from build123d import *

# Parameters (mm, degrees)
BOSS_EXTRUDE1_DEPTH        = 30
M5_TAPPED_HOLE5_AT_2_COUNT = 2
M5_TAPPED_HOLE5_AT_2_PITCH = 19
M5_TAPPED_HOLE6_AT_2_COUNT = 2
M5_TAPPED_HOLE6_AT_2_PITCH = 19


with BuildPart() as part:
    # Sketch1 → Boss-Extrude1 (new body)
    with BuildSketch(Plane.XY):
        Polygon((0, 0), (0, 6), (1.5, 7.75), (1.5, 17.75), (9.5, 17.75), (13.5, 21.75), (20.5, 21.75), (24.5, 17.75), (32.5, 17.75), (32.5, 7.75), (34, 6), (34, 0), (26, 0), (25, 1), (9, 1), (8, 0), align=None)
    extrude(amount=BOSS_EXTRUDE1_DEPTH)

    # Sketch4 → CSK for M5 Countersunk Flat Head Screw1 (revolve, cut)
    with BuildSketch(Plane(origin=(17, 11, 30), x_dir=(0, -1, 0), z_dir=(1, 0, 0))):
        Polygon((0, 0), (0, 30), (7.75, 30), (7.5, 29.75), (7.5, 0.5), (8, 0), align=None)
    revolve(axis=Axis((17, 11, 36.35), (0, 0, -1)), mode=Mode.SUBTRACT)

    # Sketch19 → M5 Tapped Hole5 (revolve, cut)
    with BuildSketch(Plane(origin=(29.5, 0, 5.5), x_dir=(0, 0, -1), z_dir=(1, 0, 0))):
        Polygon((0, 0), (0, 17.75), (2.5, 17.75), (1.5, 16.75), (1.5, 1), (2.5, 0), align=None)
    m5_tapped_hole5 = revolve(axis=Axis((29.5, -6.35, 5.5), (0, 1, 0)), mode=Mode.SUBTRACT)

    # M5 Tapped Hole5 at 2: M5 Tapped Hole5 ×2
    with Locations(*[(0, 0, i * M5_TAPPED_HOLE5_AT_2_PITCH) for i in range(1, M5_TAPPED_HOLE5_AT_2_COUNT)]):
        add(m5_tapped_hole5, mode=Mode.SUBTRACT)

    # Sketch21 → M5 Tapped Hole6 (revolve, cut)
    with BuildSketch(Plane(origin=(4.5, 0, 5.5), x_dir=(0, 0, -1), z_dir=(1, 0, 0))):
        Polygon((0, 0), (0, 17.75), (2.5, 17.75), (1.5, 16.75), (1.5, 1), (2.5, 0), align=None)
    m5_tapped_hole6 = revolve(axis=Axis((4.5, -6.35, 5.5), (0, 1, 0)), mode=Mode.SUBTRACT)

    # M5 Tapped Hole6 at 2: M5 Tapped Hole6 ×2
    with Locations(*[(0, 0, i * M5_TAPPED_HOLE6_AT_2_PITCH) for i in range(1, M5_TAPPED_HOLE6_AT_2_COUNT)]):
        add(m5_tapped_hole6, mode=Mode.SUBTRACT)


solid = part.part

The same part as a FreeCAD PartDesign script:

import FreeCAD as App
import Part
import Sketcher
Q = App.Units.Quantity


def add_polygon(sketch, points):
    """Adds a closed chain of lines whose ends are joined by coincident constraints."""
    first, n = sketch.GeometryCount, len(points)
    for a, b in zip(points, points[1:] + points[:1]):
        sketch.addGeometry(Part.LineSegment(App.Vector(*a, 0), App.Vector(*b, 0)), False)
    for i in range(n):
        sketch.addConstraint(Sketcher.Constraint("Coincident", first + i, 2, first + (i + 1) % n, 1))

doc = App.newDocument("Part")
body = doc.addObject("PartDesign::Body", "Body")

# Sketch on XY plane
sketch1 = doc.addObject("Sketcher::SketchObject", "Sketch")
body.addObject(sketch1)
sketch1.AttachmentSupport = (doc.XY_Plane, [""])
sketch1.MapMode = "FlatFace"
add_polygon(sketch1, [(0, 6), (0, 0), (8, 0), (9, 1), (25, 1), (26, 0), (34, 0), (34, 6), (32.5, 7.8), (32.5, 17.8), (24.5, 17.8), (20.5, 21.8), (13.5, 21.8), (9.5, 17.8), (1.5, 17.8), (1.5, 7.8)])  # lines 0-15
sketch1.addConstraint([
    Sketcher.Constraint("Vertical", 0),
    Sketcher.Constraint("Horizontal", 1),
    Sketcher.Constraint("Horizontal", 3),
    Sketcher.Constraint("Horizontal", 5),
    Sketcher.Constraint("Vertical", 6),
    Sketcher.Constraint("Vertical", 8),
    Sketcher.Constraint("Horizontal", 9),
    Sketcher.Constraint("Horizontal", 11),
    Sketcher.Constraint("Horizontal", 13),
    Sketcher.Constraint("Vertical", 14),
    Sketcher.Constraint("Coincident", 0, 2, -1, 1),
    Sketcher.Constraint("PointOnObject", 4, 2, -1),
    Sketcher.Constraint("Perpendicular", 2, 4),
    Sketcher.Constraint("Parallel", 4, 10),
    Sketcher.Constraint("Perpendicular", 10, 12),
    Sketcher.Constraint("Horizontal", 9, 2, 12, 2),
    Sketcher.Constraint("Horizontal", 7, 2, 14, 2),
    Sketcher.Constraint("Horizontal", 6, 2, 15, 2),
    Sketcher.Constraint("Equal", 1, 5),
    Sketcher.Constraint("Equal", 5, 9),
    Sketcher.Constraint("Equal", 9, 13),
    Sketcher.Constraint("Equal", 2, 4),
    Sketcher.Constraint("Equal", 7, 15),
    Sketcher.Constraint("DistanceX", 1, 1, 1, 2, Q("8 mm")),
    Sketcher.Constraint("DistanceX", 3, 1, 3, 2, Q("16 mm")),
    Sketcher.Constraint("DistanceX", 11, 2, 11, 1, Q("7 mm")),
    Sketcher.Constraint("DistanceY", 0, 2, 0, 1, Q("6 mm")),
    Sketcher.Constraint("DistanceY", 8, 1, 8, 2, Q("10 mm")),
    Sketcher.Constraint("DistanceX", -1, 1, 2, 2, Q("9 mm")),
    Sketcher.Constraint("DistanceX", 10, 2, 9, 2, Q("4 mm")),
    Sketcher.Constraint("DistanceY", -1, 1, 7, 2, Q("7.75 mm")),
])
pad1 = doc.addObject("PartDesign::Pad", "Pad")
body.addObject(pad1)
pad1.Profile = sketch1
pad1.Length = 30

# Sketch on YZ plane
sketch2 = doc.addObject("Sketcher::SketchObject", "Sketch001")
body.addObject(sketch2)
sketch2.AttachmentSupport = (doc.YZ_Plane, [""])
sketch2.MapMode = "FlatFace"
sketch2.AttachmentOffset = App.Placement(App.Vector(0, 0, 17), App.Rotation())
add_polygon(sketch2, [(11, 0), (11, 30), (3, 30), (3.5, 29.5), (3.5, 0.25), (3.25, 0)])  # lines 0-5
sketch2.addGeometry(Part.LineSegment(App.Vector(11, 30, 0), App.Vector(11, 0, 0)), True)  # axis
sketch2.addConstraint([
    Sketcher.Constraint("Vertical", 0),
    Sketcher.Constraint("Horizontal", 1),
    Sketcher.Constraint("Vertical", 3),
    Sketcher.Constraint("Horizontal", 5),
    Sketcher.Constraint("Vertical", 6),
    Sketcher.Constraint("Coincident", 6, 1, 0, 2),
    Sketcher.Constraint("PointOnObject", 4, 2, -1),
    Sketcher.Constraint("PointOnObject", 6, 2, -1),
    Sketcher.Constraint("Perpendicular", 2, 4),
    Sketcher.Constraint("DistanceX", 1, 2, 1, 1, Q("8 mm")),
    Sketcher.Constraint("DistanceY", 0, 1, 0, 2, Q("30 mm")),
    Sketcher.Constraint("Angle", 2, Q("-45 deg")),
    Sketcher.Constraint("DistanceX", -1, 1, 0, 2, Q("11 mm")),
    Sketcher.Constraint("DistanceX", 5, 1, 5, 2, Q("7.75 mm")),
    Sketcher.Constraint("DistanceY", 3, 2, 3, 1, Q("29.25 mm")),
])
groove = doc.addObject("PartDesign::Groove", "Groove")
body.addObject(groove)
groove.Profile = sketch2
groove.ReferenceAxis = (sketch2, ["Axis0"])
groove.Angle = 360

# Sketch on YZ plane
sketch3 = doc.addObject("Sketcher::SketchObject", "Sketch002")
body.addObject(sketch3)
sketch3.AttachmentSupport = (doc.YZ_Plane, [""])
sketch3.MapMode = "FlatFace"
sketch3.AttachmentOffset = App.Placement(App.Vector(0, 0, 29.5), App.Rotation())
add_polygon(sketch3, [(17.8, 5.5), (0, 5.5), (0, 3), (1, 4), (16.8, 4), (17.8, 3)])  # lines 0-5
sketch3.addGeometry(Part.LineSegment(App.Vector(0, 5.5, 0), App.Vector(17.8, 5.5, 0)), True)  # axis
sketch3.addConstraint([
    Sketcher.Constraint("Horizontal", 0),
    Sketcher.Constraint("Vertical", 1),
    Sketcher.Constraint("Horizontal", 3),
    Sketcher.Constraint("Vertical", 5),
    Sketcher.Constraint("Horizontal", 6),
    Sketcher.Constraint("Coincident", 6, 1, 0, 2),
    Sketcher.Constraint("PointOnObject", 0, 2, -2),
    Sketcher.Constraint("Perpendicular", 2, 4),
    Sketcher.Constraint("Horizontal", 1, 2, 4, 2),
    Sketcher.Constraint("Vertical", 4, 2, 6, 2),
    Sketcher.Constraint("Equal", 2, 4),
    Sketcher.Constraint("DistanceY", 1, 2, 1, 1, Q("2.5 mm")),
    Sketcher.Constraint("DistanceY", -1, 1, 1, 2, Q("3 mm")),
    Sketcher.Constraint("DistanceX", -1, 1, 2, 2, Q("1 mm")),
    Sketcher.Constraint("DistanceX", 0, 2, 0, 1, Q("17.75 mm")),
])
groove2 = doc.addObject("PartDesign::Groove", "Groove001")
body.addObject(groove2)
groove2.Profile = sketch3
groove2.ReferenceAxis = (sketch3, ["Axis0"])
groove2.Angle = 360
doc.recompute()

linearpattern = doc.addObject("PartDesign::LinearPattern", "LinearPattern")
body.addObject(linearpattern)
linearpattern.Originals = [groove2]
linearpattern.Direction = (doc.Z_Axis, [""])
linearpattern.Mode = "offset"
linearpattern.Offset = 19
linearpattern.Occurrences = 2
body.Tip = linearpattern

# Sketch on YZ plane
sketch4 = doc.addObject("Sketcher::SketchObject", "Sketch003")
body.addObject(sketch4)
sketch4.AttachmentSupport = (doc.YZ_Plane, [""])
sketch4.MapMode = "FlatFace"
sketch4.AttachmentOffset = App.Placement(App.Vector(0, 0, 4.5), App.Rotation())
add_polygon(sketch4, [(17.8, 5.5), (0, 5.5), (0, 3), (1, 4), (16.8, 4), (17.8, 3)])  # lines 0-5
sketch4.addGeometry(Part.LineSegment(App.Vector(0, 5.5, 0), App.Vector(17.8, 5.5, 0)), True)  # axis
sketch4.addConstraint([
    Sketcher.Constraint("Horizontal", 0),
    Sketcher.Constraint("Vertical", 1),
    Sketcher.Constraint("Horizontal", 3),
    Sketcher.Constraint("Vertical", 5),
    Sketcher.Constraint("Horizontal", 6),
    Sketcher.Constraint("Coincident", 6, 1, 0, 2),
    Sketcher.Constraint("PointOnObject", 0, 2, -2),
    Sketcher.Constraint("Perpendicular", 2, 4),
    Sketcher.Constraint("Horizontal", 1, 2, 4, 2),
    Sketcher.Constraint("Vertical", 4, 2, 6, 2),
    Sketcher.Constraint("Equal", 2, 4),
    Sketcher.Constraint("DistanceY", 1, 2, 1, 1, Q("2.5 mm")),
    Sketcher.Constraint("DistanceY", -1, 1, 1, 2, Q("3 mm")),
    Sketcher.Constraint("DistanceX", -1, 1, 2, 2, Q("1 mm")),
    Sketcher.Constraint("DistanceX", 0, 2, 0, 1, Q("17.75 mm")),
])
groove3 = doc.addObject("PartDesign::Groove", "Groove002")
body.addObject(groove3)
groove3.Profile = sketch4
groove3.ReferenceAxis = (sketch4, ["Axis0"])
groove3.Angle = 360
doc.recompute()

linearpattern2 = doc.addObject("PartDesign::LinearPattern", "LinearPattern001")
body.addObject(linearpattern2)
linearpattern2.Originals = [groove3]
linearpattern2.Direction = (doc.Z_Axis, [""])
linearpattern2.Mode = "offset"
linearpattern2.Offset = 19
linearpattern2.Occurrences = 2
body.Tip = linearpattern2

doc.recompute()
